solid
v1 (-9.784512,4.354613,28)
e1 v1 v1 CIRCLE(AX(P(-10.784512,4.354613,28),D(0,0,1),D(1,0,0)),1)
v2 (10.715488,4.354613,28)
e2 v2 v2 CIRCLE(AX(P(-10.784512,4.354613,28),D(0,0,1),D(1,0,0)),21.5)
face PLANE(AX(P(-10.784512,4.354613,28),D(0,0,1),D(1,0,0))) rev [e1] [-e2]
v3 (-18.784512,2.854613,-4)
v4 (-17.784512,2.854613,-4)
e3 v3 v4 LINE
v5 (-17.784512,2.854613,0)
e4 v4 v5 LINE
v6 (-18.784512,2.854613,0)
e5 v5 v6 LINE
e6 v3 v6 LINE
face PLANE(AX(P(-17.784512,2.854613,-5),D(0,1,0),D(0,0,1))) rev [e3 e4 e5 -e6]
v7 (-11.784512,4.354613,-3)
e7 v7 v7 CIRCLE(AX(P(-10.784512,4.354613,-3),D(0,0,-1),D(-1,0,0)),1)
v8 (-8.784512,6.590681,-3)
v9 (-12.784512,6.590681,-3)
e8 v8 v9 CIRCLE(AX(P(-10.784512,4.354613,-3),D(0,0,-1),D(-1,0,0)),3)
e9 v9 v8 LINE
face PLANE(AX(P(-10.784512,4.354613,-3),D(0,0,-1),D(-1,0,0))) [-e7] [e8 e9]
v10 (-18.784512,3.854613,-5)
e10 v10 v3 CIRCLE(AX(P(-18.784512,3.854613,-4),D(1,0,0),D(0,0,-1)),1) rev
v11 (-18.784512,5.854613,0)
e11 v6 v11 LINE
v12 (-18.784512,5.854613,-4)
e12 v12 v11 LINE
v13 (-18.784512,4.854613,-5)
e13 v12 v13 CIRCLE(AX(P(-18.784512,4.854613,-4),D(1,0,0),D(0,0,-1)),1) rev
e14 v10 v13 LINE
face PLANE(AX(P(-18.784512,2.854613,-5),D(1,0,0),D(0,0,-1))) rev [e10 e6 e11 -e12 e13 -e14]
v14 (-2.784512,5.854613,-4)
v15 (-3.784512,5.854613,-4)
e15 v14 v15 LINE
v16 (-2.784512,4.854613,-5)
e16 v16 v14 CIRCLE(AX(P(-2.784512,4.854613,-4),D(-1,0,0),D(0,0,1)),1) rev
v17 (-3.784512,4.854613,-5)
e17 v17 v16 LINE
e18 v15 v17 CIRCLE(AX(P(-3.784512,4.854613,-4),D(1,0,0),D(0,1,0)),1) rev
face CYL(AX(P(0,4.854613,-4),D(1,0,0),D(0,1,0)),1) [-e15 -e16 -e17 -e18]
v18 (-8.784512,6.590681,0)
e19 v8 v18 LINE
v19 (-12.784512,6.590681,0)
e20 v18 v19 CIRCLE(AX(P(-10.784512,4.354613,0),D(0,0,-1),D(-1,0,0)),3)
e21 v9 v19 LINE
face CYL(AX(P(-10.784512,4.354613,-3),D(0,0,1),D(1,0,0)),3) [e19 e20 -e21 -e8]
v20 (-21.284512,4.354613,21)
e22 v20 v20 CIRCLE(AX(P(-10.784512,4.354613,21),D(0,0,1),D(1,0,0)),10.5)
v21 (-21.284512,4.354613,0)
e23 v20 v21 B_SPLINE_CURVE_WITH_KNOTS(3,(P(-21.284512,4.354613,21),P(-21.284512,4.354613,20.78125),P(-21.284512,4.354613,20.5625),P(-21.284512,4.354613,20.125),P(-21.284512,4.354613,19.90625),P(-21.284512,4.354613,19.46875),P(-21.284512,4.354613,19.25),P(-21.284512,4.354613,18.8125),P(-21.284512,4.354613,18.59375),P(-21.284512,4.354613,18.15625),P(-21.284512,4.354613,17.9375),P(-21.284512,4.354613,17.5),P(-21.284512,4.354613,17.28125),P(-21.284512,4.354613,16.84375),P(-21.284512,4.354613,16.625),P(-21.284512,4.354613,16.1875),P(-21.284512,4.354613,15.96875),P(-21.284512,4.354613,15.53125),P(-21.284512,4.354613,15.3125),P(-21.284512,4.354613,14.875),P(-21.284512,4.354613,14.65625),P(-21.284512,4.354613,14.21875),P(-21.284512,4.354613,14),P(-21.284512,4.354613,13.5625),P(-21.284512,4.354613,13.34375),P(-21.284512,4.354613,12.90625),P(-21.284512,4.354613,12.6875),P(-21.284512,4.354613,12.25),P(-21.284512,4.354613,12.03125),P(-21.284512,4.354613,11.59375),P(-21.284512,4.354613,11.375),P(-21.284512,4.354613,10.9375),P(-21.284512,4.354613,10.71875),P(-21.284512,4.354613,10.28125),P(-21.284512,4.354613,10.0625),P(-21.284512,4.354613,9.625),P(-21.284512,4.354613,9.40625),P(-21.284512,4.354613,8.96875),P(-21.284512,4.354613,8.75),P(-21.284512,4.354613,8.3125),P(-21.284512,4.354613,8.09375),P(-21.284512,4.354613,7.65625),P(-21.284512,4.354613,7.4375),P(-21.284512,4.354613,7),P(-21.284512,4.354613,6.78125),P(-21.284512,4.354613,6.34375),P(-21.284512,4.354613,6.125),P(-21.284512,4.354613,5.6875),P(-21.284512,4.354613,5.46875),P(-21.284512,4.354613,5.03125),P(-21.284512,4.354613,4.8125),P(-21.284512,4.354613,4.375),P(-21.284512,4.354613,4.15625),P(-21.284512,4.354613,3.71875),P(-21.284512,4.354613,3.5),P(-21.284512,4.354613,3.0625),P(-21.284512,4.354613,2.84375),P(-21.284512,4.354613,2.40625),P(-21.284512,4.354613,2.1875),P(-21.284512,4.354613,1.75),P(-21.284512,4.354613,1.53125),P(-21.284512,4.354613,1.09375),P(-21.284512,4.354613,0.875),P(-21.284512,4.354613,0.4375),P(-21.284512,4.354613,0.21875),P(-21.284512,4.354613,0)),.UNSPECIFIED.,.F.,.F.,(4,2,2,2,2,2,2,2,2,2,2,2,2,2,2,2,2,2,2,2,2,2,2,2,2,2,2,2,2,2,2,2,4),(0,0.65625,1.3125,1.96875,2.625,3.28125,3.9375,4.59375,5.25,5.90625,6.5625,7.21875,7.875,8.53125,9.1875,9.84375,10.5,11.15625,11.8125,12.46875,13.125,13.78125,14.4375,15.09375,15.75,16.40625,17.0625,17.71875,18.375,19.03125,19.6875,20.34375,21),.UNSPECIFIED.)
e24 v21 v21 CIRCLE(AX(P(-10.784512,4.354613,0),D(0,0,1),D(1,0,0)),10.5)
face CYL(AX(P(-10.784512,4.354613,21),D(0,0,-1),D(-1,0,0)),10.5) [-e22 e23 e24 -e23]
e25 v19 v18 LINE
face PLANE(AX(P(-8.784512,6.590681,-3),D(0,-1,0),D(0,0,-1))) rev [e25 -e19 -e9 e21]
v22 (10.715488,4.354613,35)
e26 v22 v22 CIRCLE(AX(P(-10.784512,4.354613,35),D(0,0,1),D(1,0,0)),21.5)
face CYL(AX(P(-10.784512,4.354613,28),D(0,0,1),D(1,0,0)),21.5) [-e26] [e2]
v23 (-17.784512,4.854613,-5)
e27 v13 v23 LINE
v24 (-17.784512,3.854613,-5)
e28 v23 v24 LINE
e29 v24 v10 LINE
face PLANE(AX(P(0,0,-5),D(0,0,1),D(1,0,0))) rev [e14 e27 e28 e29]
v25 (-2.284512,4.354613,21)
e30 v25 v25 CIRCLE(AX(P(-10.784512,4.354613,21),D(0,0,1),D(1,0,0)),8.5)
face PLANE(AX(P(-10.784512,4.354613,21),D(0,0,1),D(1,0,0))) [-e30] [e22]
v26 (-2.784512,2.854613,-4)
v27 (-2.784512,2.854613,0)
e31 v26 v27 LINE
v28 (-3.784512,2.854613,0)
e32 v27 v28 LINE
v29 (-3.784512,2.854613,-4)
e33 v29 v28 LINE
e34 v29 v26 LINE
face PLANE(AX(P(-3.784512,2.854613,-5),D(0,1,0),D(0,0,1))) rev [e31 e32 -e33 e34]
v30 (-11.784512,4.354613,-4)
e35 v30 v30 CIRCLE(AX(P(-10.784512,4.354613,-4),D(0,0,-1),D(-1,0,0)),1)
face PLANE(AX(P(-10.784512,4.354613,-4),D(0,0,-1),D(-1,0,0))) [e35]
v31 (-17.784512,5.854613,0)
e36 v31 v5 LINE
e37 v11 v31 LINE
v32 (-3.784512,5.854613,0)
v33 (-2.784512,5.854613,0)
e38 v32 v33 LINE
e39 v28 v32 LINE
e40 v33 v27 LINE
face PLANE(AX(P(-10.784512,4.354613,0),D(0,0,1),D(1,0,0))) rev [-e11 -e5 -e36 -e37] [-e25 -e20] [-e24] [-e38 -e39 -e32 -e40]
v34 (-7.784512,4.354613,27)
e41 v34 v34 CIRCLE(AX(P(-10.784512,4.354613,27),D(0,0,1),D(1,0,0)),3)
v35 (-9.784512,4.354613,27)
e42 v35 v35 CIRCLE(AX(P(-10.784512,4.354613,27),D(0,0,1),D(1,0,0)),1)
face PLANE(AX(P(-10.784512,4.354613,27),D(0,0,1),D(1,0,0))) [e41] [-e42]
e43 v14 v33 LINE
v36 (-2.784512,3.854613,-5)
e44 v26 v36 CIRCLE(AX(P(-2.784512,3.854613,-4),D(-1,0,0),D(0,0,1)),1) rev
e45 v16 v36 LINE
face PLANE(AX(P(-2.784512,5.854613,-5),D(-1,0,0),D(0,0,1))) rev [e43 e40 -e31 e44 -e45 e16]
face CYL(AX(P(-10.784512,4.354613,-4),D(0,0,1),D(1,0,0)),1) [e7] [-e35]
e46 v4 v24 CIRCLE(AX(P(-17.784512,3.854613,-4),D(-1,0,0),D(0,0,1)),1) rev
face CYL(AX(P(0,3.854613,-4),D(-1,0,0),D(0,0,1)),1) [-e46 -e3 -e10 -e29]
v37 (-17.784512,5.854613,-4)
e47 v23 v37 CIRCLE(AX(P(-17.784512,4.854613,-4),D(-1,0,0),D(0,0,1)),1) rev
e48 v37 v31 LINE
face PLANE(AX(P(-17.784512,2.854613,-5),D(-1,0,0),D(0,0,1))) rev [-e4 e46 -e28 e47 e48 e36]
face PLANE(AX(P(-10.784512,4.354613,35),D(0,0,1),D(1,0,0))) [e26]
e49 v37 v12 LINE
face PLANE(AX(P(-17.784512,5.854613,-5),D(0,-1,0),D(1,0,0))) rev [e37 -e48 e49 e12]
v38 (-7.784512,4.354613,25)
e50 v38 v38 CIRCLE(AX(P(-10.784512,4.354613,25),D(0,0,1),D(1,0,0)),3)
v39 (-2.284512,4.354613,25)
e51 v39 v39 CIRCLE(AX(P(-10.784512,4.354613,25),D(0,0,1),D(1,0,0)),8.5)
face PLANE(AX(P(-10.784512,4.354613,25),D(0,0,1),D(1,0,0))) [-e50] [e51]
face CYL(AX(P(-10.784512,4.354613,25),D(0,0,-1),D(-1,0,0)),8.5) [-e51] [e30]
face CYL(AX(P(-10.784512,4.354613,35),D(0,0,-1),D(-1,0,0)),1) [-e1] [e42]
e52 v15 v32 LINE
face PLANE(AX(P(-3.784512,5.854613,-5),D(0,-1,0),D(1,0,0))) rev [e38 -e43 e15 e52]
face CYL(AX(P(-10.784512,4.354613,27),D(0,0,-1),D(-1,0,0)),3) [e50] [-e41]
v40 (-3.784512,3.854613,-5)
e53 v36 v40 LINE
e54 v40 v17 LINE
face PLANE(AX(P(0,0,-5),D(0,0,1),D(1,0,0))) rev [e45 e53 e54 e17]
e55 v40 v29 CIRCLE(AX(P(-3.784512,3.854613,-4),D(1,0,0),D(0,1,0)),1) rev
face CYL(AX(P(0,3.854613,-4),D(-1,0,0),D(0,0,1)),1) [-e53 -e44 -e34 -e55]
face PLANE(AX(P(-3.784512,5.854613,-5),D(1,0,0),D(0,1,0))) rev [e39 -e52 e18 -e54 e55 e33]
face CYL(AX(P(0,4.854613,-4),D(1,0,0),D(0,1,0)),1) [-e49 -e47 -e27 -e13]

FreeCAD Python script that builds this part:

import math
import FreeCAD as App
import Part
import Sketcher

V = App.Vector
Q = App.Units.Quantity


def edges_at(feature, points):
    """Names of the edges that pass closest to the given points."""
    edges = feature.Shape.Edges
    near = lambda p: min(range(len(edges)), key=lambda i: edges[i].distToShape(Part.Vertex(*p))[0])
    return sorted({f"Edge{near(p) + 1}" for p in points})


def add_polygon(sketch, points):
    """Adds a closed chain of lines whose ends are joined by coincident constraints."""
    first, n = sketch.GeometryCount, len(points)
    for a, b in zip(points, points[1:] + points[:1]):
        sketch.addGeometry(Part.LineSegment(App.Vector(*a, 0), App.Vector(*b, 0)), False)
    for i in range(n):
        sketch.addConstraint(Sketcher.Constraint("Coincident", first + i, 2, first + (i + 1) % n, 1))

doc = App.newDocument("Part")
body = doc.addObject("PartDesign::Body", "Body")

# Sketch on XY plane
sketch1 = body.newObject("Sketcher::SketchObject", "Sketch")
sketch1.AttachmentSupport = (doc.getObject("XY_Plane"), [""])
sketch1.MapMode = "FlatFace"
sketch1.addGeometry(Part.Circle(V(-10.784512, 4.354613, 0), V(0, 0, 1), 10.5), False)
sketch1.addConstraint([
    Sketcher.Constraint("Diameter", 0, Q("21 mm")),
    Sketcher.Constraint("DistanceX", 0, 3, -1, 1, Q("10.784512 mm")),
    Sketcher.Constraint("DistanceY", -1, 1, 0, 3, Q("4.354613 mm")),
])
pad1 = body.newObject("PartDesign::Pad", "Pad")
pad1.Profile = sketch1
pad1.Length = 21

# Sketch on XY plane
sketch2 = body.newObject("Sketcher::SketchObject", "Sketch001")
sketch2.AttachmentSupport = (doc.getObject("XY_Plane"), [""])
sketch2.MapMode = "FlatFace"
sketch2.AttachmentOffset = App.Placement(V(0, 0, 21), App.Rotation())
sketch2.addGeometry(Part.Circle(V(-10.784512, 4.354613, 0), V(0, 0, 1), 8.5), False)
sketch2.addConstraint([
    Sketcher.Constraint("Diameter", 0, Q("17 mm")),
    Sketcher.Constraint("DistanceX", 0, 3, -1, 1, Q("10.784512 mm")),
    Sketcher.Constraint("DistanceY", -1, 1, 0, 3, Q("4.354613 mm")),
])
pad2 = body.newObject("PartDesign::Pad", "Pad001")
pad2.Profile = sketch2
pad2.Length = 4

# Sketch on XY plane
sketch3 = body.newObject("Sketcher::SketchObject", "Sketch002")
sketch3.AttachmentSupport = (doc.getObject("XY_Plane"), [""])
sketch3.MapMode = "FlatFace"
sketch3.AttachmentOffset = App.Placement(V(0, 0, 25), App.Rotation())
sketch3.addGeometry(Part.Circle(V(-10.784512, 4.354613, 0), V(0, 0, 1), 3), False)
sketch3.addConstraint([
    Sketcher.Constraint("Diameter", 0, Q("6 mm")),
    Sketcher.Constraint("DistanceX", 0, 3, -1, 1, Q("10.784512 mm")),
    Sketcher.Constraint("DistanceY", -1, 1, 0, 3, Q("4.354613 mm")),
])
pad3 = body.newObject("PartDesign::Pad", "Pad002")
pad3.Profile = sketch3
pad3.Length = 2

# Sketch on XY plane
sketch4 = body.newObject("Sketcher::SketchObject", "Sketch003")
sketch4.AttachmentSupport = (doc.getObject("XY_Plane"), [""])
sketch4.MapMode = "FlatFace"
sketch4.AttachmentOffset = App.Placement(V(0, 0, 27), App.Rotation())
sketch4.addGeometry(Part.Circle(V(-10.784512, 4.354613, 0), V(0, 0, 1), 1), False)
sketch4.addConstraint([
    Sketcher.Constraint("Diameter", 0, Q("2 mm")),
    Sketcher.Constraint("DistanceX", 0, 3, -1, 1, Q("10.784512 mm")),
    Sketcher.Constraint("DistanceY", -1, 1, 0, 3, Q("4.354613 mm")),
])
pad4 = body.newObject("PartDesign::Pad", "Pad003")
pad4.Profile = sketch4
pad4.Length = 8

# Sketch on XY plane
sketch5 = body.newObject("Sketcher::SketchObject", "Sketch004")
sketch5.AttachmentSupport = (doc.getObject("XY_Plane"), [""])
sketch5.MapMode = "FlatFace"
add_polygon(sketch5, [(-17.784512, 5.854613), (-17.784512, 2.854613), (-18.784512, 2.854613), (-18.784512, 5.854613)])  # lines 0-3
add_polygon(sketch5, [(-2.784512, 5.854613), (-2.784512, 2.854613), (-3.784512, 2.854613), (-3.784512, 5.854613)])  # lines 4-7
sketch5.addConstraint([
    Sketcher.Constraint("Vertical", 0),
    Sketcher.Constraint("Horizontal", 1),
    Sketcher.Constraint("Vertical", 2),
    Sketcher.Constraint("Horizontal", 3),
    Sketcher.Constraint("Vertical", 4),
    Sketcher.Constraint("Horizontal", 5),
    Sketcher.Constraint("Vertical", 6),
    Sketcher.Constraint("Horizontal", 7),
    Sketcher.Constraint("Horizontal", 1, 2, 4, 2),
    Sketcher.Constraint("Horizontal", 3, 2, 6, 2),
    Sketcher.Constraint("Equal", 3, 5),
    Sketcher.Constraint("DistanceX", 1, 2, 1, 1, Q("1 mm")),
    Sketcher.Constraint("DistanceY", 0, 2, 0, 1, Q("3 mm")),
    Sketcher.Constraint("DistanceX", 0, 2, 4, 2, Q("15 mm")),
    Sketcher.Constraint("DistanceX", 0, 2, -1, 1, Q("17.784512 mm")),
    Sketcher.Constraint("DistanceY", -1, 1, 0, 2, Q("2.854613 mm")),
])
pad5 = body.newObject("PartDesign::Pad", "Pad004")
pad5.Profile = sketch5
pad5.Length = 5
pad5.Reversed = True
doc.recompute()

fillet = body.newObject("PartDesign::Fillet", "Fillet")
fillet.Base = (pad5, edges_at(pad5, [
    (-18.285, 2.855, -5),
    (-18.285, 5.855, -5),
    (-3.285, 5.855, -5),
    (-3.285, 2.855, -5),
]))
fillet.Radius = 1

# Sketch on XY plane
sketch6 = body.newObject("Sketcher::SketchObject", "Sketch005")
sketch6.AttachmentSupport = (doc.getObject("XY_Plane"), [""])
sketch6.MapMode = "FlatFace"
sketch6.AttachmentOffset = App.Placement(V(0, 0, -3), App.Rotation())
sketch6.addGeometry([
    Part.LineSegment(V(-12.784512, 6.590681, 0), V(-8.784512, 6.590681, 0)),
    Part.ArcOfCircle(Part.Circle(V(-10.784512, 4.354613, 0), V(0, 0, 1), 3), math.radians(131.810315), math.radians(408.189685)),
], False)
sketch6.addConstraint([
    Sketcher.Constraint("Coincident", 0, 1, 1, 1),
    Sketcher.Constraint("Coincident", 1, 2, 0, 2),
    Sketcher.Constraint("Horizontal", 0),
    Sketcher.Constraint("Radius", 1, Q("3 mm")),
    Sketcher.Constraint("DistanceX", 0, 1, 0, 2, Q("4 mm")),
    Sketcher.Constraint("DistanceY", -1, 1, 0, 1, Q("6.590681 mm")),
    Sketcher.Constraint("DistanceX", 1, 3, -1, 1, Q("10.784512 mm")),
])
pad6 = body.newObject("PartDesign::Pad", "Pad005")
pad6.Profile = sketch6
pad6.Length = 3

# Sketch on XY plane
sketch7 = body.newObject("Sketcher::SketchObject", "Sketch006")
sketch7.AttachmentSupport = (doc.getObject("XY_Plane"), [""])
sketch7.MapMode = "FlatFace"
sketch7.AttachmentOffset = App.Placement(V(0, 0, -4), App.Rotation())
sketch7.addGeometry(Part.Circle(V(-10.784512, 4.354613, 0), V(0, 0, 1), 1), False)
sketch7.addConstraint([
    Sketcher.Constraint("Diameter", 0, Q("2 mm")),
    Sketcher.Constraint("DistanceX", 0, 3, -1, 1, Q("10.784512 mm")),
    Sketcher.Constraint("DistanceY", -1, 1, 0, 3, Q("4.354613 mm")),
])
pad7 = body.newObject("PartDesign::Pad", "Pad006")
pad7.Profile = sketch7
pad7.Length = 1

# Sketch on XY plane
sketch8 = body.newObject("Sketcher::SketchObject", "Sketch007")
sketch8.AttachmentSupport = (doc.getObject("XY_Plane"), [""])
sketch8.MapMode = "FlatFace"
sketch8.AttachmentOffset = App.Placement(V(0, 0, 35), App.Rotation())
sketch8.addGeometry(Part.Circle(V(-10.784512, 4.354613, 0), V(0, 0, 1), 21.5), False)
sketch8.addConstraint([
    Sketcher.Constraint("Diameter", 0, Q("43 mm")),
    Sketcher.Constraint("DistanceX", 0, 3, -1, 1, Q("10.784512 mm")),
    Sketcher.Constraint("DistanceY", -1, 1, 0, 3, Q("4.354613 mm")),
])
pad8 = body.newObject("PartDesign::Pad", "Pad007")
pad8.Profile = sketch8
pad8.Length = 7
pad8.Reversed = True

doc.recompute()
